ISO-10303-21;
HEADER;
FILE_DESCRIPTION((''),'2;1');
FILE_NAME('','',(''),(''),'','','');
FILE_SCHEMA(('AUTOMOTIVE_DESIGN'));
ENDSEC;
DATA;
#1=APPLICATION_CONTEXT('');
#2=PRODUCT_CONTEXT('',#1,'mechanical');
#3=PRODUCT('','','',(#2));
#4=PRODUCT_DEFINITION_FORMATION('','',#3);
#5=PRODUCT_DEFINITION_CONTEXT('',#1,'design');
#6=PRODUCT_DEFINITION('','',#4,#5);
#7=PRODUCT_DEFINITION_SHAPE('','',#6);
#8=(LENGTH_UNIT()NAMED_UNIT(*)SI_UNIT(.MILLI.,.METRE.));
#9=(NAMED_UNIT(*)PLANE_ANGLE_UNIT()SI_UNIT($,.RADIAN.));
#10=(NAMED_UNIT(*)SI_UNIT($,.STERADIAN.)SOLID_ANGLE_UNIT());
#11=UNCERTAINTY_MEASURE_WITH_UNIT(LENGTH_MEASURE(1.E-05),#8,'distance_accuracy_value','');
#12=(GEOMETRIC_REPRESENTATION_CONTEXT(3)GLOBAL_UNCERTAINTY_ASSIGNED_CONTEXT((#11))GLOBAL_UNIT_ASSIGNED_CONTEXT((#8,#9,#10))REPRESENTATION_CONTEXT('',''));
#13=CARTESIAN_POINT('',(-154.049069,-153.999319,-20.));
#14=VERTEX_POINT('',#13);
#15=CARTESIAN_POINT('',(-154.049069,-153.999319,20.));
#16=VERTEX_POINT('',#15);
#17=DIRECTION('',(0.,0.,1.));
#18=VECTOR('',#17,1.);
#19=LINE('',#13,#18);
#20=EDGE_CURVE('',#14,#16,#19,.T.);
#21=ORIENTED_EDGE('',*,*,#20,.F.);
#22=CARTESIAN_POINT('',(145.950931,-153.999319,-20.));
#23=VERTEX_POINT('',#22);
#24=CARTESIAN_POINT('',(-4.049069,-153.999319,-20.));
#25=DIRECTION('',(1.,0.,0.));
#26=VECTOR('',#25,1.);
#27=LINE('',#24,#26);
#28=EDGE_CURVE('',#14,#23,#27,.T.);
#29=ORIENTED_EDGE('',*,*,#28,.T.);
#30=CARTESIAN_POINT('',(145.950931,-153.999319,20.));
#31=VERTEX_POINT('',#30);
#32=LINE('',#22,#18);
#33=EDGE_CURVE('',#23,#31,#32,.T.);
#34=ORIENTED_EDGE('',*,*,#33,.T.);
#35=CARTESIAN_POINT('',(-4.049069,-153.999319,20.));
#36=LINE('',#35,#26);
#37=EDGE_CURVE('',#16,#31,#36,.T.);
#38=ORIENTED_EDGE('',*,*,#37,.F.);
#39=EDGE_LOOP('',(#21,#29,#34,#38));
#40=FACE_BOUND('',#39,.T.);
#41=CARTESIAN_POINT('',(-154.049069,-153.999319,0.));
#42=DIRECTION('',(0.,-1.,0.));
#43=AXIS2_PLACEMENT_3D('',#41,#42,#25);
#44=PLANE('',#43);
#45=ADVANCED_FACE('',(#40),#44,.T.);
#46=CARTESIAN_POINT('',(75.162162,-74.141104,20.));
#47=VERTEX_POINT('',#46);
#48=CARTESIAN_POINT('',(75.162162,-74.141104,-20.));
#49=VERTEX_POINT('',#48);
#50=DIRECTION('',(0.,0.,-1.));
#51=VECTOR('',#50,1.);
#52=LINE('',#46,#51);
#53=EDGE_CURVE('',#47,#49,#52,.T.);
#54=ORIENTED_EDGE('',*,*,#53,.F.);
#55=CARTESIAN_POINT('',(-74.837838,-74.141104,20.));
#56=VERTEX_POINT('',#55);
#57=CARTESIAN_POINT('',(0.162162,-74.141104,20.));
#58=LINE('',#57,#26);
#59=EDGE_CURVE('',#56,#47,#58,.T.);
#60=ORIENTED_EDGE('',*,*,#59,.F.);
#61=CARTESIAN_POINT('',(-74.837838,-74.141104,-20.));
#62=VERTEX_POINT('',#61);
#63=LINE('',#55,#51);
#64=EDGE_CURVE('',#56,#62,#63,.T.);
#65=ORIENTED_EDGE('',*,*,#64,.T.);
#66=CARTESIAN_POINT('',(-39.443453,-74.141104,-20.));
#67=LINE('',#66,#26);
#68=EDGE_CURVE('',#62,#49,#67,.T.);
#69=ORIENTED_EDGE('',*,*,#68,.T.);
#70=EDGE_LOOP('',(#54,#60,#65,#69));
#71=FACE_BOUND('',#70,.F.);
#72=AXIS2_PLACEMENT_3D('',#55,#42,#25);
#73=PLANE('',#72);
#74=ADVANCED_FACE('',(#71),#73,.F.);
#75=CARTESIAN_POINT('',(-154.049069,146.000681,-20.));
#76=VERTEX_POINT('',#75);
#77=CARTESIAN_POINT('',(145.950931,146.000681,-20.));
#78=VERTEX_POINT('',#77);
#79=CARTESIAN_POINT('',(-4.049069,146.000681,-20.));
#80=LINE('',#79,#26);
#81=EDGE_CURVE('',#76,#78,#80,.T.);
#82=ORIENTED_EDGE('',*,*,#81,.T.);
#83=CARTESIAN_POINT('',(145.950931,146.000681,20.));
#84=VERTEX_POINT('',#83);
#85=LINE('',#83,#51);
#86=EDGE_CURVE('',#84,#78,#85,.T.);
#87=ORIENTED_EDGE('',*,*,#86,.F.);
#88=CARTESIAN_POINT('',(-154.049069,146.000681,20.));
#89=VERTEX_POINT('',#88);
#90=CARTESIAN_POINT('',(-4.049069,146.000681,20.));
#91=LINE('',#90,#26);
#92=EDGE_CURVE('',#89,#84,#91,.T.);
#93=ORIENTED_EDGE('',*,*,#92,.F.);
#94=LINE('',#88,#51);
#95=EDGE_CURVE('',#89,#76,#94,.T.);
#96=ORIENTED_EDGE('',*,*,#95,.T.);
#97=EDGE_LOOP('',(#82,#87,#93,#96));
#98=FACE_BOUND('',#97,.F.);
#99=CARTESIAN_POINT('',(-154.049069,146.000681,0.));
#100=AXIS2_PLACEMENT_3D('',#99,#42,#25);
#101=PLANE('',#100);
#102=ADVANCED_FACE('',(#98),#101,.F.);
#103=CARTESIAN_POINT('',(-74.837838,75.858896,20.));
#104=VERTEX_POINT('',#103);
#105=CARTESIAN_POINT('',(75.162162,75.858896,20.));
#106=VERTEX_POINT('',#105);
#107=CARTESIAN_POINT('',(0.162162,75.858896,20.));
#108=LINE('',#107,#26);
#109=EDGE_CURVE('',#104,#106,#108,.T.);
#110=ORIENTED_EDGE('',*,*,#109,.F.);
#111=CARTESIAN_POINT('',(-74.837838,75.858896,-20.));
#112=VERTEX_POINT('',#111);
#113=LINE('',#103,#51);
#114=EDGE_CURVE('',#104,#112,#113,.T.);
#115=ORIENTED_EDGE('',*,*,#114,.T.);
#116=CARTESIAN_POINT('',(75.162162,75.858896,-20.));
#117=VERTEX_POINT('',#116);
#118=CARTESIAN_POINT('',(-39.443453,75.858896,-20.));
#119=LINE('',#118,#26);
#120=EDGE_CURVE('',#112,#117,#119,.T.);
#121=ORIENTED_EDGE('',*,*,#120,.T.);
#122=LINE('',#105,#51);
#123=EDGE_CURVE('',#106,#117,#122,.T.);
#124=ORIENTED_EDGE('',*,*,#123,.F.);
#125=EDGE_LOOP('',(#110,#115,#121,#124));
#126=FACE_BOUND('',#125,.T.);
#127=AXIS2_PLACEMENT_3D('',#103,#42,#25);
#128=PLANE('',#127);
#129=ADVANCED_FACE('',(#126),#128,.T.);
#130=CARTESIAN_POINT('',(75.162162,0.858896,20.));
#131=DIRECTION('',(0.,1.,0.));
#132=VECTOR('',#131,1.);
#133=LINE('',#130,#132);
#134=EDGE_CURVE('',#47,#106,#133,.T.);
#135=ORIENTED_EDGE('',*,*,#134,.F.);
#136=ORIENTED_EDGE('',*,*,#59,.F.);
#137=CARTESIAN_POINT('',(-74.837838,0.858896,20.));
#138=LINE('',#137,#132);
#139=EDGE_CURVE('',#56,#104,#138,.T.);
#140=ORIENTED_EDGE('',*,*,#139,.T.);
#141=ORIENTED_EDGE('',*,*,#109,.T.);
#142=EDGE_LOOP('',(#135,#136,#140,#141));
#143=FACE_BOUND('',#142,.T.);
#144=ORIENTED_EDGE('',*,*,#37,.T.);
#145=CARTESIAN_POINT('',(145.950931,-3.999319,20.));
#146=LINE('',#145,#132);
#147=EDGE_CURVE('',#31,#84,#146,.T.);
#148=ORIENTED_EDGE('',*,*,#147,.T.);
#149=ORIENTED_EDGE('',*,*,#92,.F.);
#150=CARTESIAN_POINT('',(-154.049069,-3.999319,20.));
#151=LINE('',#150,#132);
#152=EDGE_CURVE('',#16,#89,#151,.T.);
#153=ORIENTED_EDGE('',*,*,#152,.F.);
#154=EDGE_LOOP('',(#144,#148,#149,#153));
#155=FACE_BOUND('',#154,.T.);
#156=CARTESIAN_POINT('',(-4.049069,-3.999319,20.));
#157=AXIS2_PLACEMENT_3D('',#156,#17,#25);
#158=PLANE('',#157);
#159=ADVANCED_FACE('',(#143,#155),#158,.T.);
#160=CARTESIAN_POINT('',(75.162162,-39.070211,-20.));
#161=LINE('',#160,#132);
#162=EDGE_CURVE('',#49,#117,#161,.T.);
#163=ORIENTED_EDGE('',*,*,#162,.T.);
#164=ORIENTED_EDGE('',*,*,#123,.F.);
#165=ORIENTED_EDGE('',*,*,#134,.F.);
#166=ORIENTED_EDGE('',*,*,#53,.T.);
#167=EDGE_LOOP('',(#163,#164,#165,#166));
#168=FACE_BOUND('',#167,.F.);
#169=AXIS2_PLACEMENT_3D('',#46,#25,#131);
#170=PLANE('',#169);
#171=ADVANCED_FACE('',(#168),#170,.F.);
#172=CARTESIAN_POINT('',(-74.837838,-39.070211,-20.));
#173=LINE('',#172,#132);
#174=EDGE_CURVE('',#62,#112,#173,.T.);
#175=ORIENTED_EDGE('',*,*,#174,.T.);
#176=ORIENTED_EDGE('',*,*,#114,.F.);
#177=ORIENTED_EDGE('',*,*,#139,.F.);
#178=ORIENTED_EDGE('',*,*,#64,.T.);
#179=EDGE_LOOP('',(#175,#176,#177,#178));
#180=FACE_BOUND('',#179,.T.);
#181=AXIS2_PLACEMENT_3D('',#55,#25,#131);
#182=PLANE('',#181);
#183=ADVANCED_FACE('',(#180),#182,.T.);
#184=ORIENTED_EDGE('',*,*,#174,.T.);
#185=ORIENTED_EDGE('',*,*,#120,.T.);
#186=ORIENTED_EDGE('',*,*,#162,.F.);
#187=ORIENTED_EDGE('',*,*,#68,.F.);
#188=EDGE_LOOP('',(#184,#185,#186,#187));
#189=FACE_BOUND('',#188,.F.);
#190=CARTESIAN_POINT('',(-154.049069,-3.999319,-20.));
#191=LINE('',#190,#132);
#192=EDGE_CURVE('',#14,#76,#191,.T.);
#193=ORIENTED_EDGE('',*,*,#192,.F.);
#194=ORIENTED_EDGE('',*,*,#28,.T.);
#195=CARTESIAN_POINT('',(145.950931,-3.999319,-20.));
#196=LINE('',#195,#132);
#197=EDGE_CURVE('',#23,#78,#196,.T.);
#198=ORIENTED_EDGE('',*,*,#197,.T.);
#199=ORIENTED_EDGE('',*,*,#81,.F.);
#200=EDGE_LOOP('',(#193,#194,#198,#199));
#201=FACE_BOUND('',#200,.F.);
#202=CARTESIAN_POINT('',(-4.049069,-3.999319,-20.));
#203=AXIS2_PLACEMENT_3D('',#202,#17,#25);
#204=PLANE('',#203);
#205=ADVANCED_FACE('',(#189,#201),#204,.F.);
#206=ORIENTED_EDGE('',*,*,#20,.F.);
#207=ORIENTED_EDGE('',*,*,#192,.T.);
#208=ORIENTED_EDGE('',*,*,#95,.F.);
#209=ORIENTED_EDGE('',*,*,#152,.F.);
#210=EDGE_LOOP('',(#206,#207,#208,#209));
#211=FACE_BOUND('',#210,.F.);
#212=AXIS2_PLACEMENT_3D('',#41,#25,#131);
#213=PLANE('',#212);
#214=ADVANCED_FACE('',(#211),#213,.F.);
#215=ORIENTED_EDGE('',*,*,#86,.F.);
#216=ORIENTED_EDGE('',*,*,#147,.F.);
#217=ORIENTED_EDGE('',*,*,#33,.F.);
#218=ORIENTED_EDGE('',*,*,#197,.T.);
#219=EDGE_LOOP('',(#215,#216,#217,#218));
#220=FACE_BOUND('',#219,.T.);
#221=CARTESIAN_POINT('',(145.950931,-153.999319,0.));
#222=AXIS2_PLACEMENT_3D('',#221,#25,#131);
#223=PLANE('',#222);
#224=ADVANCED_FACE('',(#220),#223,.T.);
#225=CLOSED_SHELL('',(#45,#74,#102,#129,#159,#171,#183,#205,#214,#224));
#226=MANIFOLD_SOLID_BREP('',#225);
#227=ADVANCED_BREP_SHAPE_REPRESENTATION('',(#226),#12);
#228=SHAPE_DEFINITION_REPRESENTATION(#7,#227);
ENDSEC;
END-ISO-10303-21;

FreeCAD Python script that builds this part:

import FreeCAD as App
import Part
import Sketcher
Q = App.Units.Quantity


def add_polygon(sketch, points):
    """Adds a closed chain of lines whose ends are joined by coincident constraints."""
    first, n = sketch.GeometryCount, len(points)
    for a, b in zip(points, points[1:] + points[:1]):
        sketch.addGeometry(Part.LineSegment(App.Vector(*a, 0), App.Vector(*b, 0)), False)
    for i in range(n):
        sketch.addConstraint(Sketcher.Constraint("Coincident", first + i, 2, first + (i + 1) % n, 1))

doc = App.newDocument("Part")
body = doc.addObject("PartDesign::Body", "Body")

sketch1 = body.newObject("Sketcher::SketchObject", "Sketch")
sketch1.AttachmentSupport = (doc.getObject("XY_Plane"), [""])
sketch1.MapMode = "FlatFace"
add_polygon(sketch1, [(-154, 146), (-154, -154), (146, -154), (146, 146)])
sketch1.addConstraint([
    Sketcher.Constraint("Vertical", 0),
    Sketcher.Constraint("Horizontal", 1),
    Sketcher.Constraint("Vertical", 2),
    Sketcher.Constraint("Horizontal", 3),
    Sketcher.Constraint("Equal", 3, 0),
    Sketcher.Constraint("DistanceX", 1, 1, 1, 2, Q("300 mm")),
    Sketcher.Constraint("DistanceX", 0, 2, -1, 1, Q("154.049069 mm")),
    Sketcher.Constraint("DistanceY", 0, 2, -1, 1, Q("153.999319 mm")),
])
pad1 = body.newObject("PartDesign::Pad", "Pad")
pad1.Profile = sketch1
pad1.Length = 40
pad1.Midplane = True

sketch2 = body.newObject("Sketcher::SketchObject", "Sketch001")
sketch2.AttachmentSupport = (doc.getObject("XY_Plane"), [""])
sketch2.MapMode = "FlatFace"
sketch2.AttachmentOffset = App.Placement(App.Vector(0, 0, 20), App.Rotation())
add_polygon(sketch2, [(-75, 76), (-75, -74), (75, -74), (75, 76)])
sketch2.addConstraint([
    Sketcher.Constraint("Vertical", 0),
    Sketcher.Constraint("Horizontal", 1),
    Sketcher.Constraint("Vertical", 2),
    Sketcher.Constraint("Horizontal", 3),
    Sketcher.Constraint("Equal", 3, 0),
    Sketcher.Constraint("DistanceX", 1, 1, 1, 2, Q("150 mm")),
    Sketcher.Constraint("DistanceX", 0, 2, -1, 1, Q("74.837838 mm")),
    Sketcher.Constraint("DistanceY", 0, 2, -1, 1, Q("74.141104 mm")),
])
pocket1 = body.newObject("PartDesign::Pocket", "Pocket")
pocket1.Profile = sketch2
pocket1.Length = 50

doc.recompute()
